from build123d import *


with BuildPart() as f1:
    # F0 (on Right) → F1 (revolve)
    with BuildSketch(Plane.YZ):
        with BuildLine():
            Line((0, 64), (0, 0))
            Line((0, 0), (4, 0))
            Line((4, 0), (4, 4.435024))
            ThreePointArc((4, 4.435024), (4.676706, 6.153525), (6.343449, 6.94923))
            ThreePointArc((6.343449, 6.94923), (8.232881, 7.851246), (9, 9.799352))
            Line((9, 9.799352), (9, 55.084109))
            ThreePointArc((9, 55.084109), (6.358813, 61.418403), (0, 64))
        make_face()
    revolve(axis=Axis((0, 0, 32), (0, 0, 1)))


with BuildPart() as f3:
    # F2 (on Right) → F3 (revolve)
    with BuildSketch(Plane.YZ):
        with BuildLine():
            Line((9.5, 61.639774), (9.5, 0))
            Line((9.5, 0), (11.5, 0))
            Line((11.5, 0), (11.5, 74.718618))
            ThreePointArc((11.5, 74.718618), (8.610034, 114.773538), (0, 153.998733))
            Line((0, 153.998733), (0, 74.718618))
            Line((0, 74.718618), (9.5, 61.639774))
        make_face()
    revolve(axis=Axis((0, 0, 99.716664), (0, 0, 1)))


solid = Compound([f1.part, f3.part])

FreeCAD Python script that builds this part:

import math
import FreeCAD as App
import Part
import Sketcher

V = App.Vector

doc = App.newDocument("Part")
body = doc.addObject("PartDesign::Body", "Body")

# Sketch on YZ plane
sketch1 = body.newObject("Sketcher::SketchObject", "Sketch")
sketch1.AttachmentSupport = (doc.getObject("YZ_Plane"), [""])
sketch1.MapMode = "FlatFace"
sketch1.addGeometry(Part.LineSegment(V(0, 64, 0), V(0, 0, 0)), False)
sketch1.addGeometry(Part.LineSegment(V(0, 0, 0), V(4, 0, 0)), False)
sketch1.addGeometry(Part.LineSegment(V(4, 0, 0), V(4, 4.4, 0)), False)
sketch1.addGeometry(Part.ArcOfCircle(Part.Circle(V(6.5, 4.4, 0), V(0, 0, 1), 2.5), math.radians(94), math.radians(180)), False)
sketch1.addGeometry(Part.ArcOfCircle(Part.Circle(V(6.1, 9.8, 0), V(0, 0, 1), 2.9), math.radians(-86), math.radians(0)), False)
sketch1.addGeometry(Part.LineSegment(V(9, 9.8, 0), V(9, 55.1, 0)), False)
sketch1.addGeometry(Part.ArcOfCircle(Part.Circle(V(0.1, 55.1, 0), V(0, 0, 1), 8.9), math.radians(0), math.radians(91)), False)
sketch1.addConstraint(Sketcher.Constraint("Coincident", 0, 2, 1, 1))
sketch1.addConstraint(Sketcher.Constraint("Coincident", 1, 2, 2, 1))
sketch1.addConstraint(Sketcher.Constraint("Tangent", 2, 2, 3, 2))
sketch1.addConstraint(Sketcher.Constraint("Tangent", 3, 1, 4, 1))
sketch1.addConstraint(Sketcher.Constraint("Tangent", 4, 2, 5, 1))
sketch1.addConstraint(Sketcher.Constraint("Tangent", 5, 2, 6, 1))
sketch1.addConstraint(Sketcher.Constraint("Coincident", 6, 2, 0, 1))
sketch1.addConstraint(Sketcher.Constraint("Vertical", 0))
sketch1.addConstraint(Sketcher.Constraint("Horizontal", 1))
sketch1.addConstraint(Sketcher.Constraint("Vertical", 2))
sketch1.addConstraint(Sketcher.Constraint("Vertical", 5))
sketch1.addConstraint(Sketcher.Constraint("Coincident", 0, 2, -1, 1))
sketch1.addConstraint(Sketcher.Constraint("DistanceX", 1, 1, 1, 2, 4.0))
sketch1.addConstraint(Sketcher.Constraint("DistanceY", 0, 2, 0, 1, 64.0))
sketch1.addConstraint(Sketcher.Constraint("DistanceX", -1, 1, 4, 2, 9.0))
sketch1.addConstraint(Sketcher.Constraint("Radius", 3, 2.520427))
sketch1.addConstraint(Sketcher.Constraint("Radius", 4, 2.857173))
sketch1.addConstraint(Sketcher.Constraint("Radius", 6, 8.916284))
sketch1.addConstraint(Sketcher.Constraint("DistanceY", 2, 1, 2, 2, 4.435024))
revolution = body.newObject("PartDesign::Revolution", "Revolution")
revolution.Profile = sketch1
revolution.ReferenceAxis = (sketch1, ["V_Axis"])
revolution.Angle = 360
body2 = doc.addObject("PartDesign::Body", "Body001")

# Sketch on YZ plane
sketch2 = body2.newObject("Sketcher::SketchObject", "Sketch001")
sketch2.AttachmentSupport = (doc.getObject("YZ_Plane001"), [""])
sketch2.MapMode = "FlatFace"
sketch2.addGeometry(Part.LineSegment(V(9.5, 61.6, 0), V(9.5, 0, 0)), False)
sketch2.addGeometry(Part.LineSegment(V(9.5, 0, 0), V(11.5, 0, 0)), False)
sketch2.addGeometry(Part.LineSegment(V(11.5, 0, 0), V(11.5, 74.7, 0)), False)
sketch2.addGeometry(Part.ArcOfCircle(Part.Circle(V(-267.5, 74.7, 0), V(0, 0, 1), 279), math.radians(0), math.radians(16.51)), False)
sketch2.addGeometry(Part.LineSegment(V(0, 154, 0), V(0, 74.7, 0)), False)
sketch2.addGeometry(Part.LineSegment(V(0, 74.7, 0), V(9.5, 61.6, 0)), False)
sketch2.addConstraint(Sketcher.Constraint("Coincident", 0, 2, 1, 1))
sketch2.addConstraint(Sketcher.Constraint("Coincident", 1, 2, 2, 1))
sketch2.addConstraint(Sketcher.Constraint("Tangent", 2, 2, 3, 1))
sketch2.addConstraint(Sketcher.Constraint("Coincident", 3, 2, 4, 1))
sketch2.addConstraint(Sketcher.Constraint("Coincident", 4, 2, 5, 1))
sketch2.addConstraint(Sketcher.Constraint("Coincident", 5, 2, 0, 1))
sketch2.addConstraint(Sketcher.Constraint("Vertical", 0))
sketch2.addConstraint(Sketcher.Constraint("Horizontal", 1))
sketch2.addConstraint(Sketcher.Constraint("Vertical", 2))
sketch2.addConstraint(Sketcher.Constraint("Vertical", 4))
sketch2.addConstraint(Sketcher.Constraint("PointOnObject", 0, 2, -1))
sketch2.addConstraint(Sketcher.Constraint("PointOnObject", 3, 2, -2))
sketch2.addConstraint(Sketcher.Constraint("Horizontal", 2, 2, 4, 2))
sketch2.addConstraint(Sketcher.Constraint("DistanceX", 1, 1, 1, 2, 2.0))
sketch2.addConstraint(Sketcher.Constraint("DistanceX", -1, 1, 0, 2, 9.5))
sketch2.addConstraint(Sketcher.Constraint("Radius", 3, 279.025494))
sketch2.addConstraint(Sketcher.Constraint("DistanceY", 2, 1, 2, 2, 74.718618))
sketch2.addConstraint(Sketcher.Constraint("DistanceY", 0, 2, 0, 1, 61.639774))
revolution2 = body2.newObject("PartDesign::Revolution", "Revolution001")
revolution2.Profile = sketch2
revolution2.ReferenceAxis = (sketch2, ["V_Axis"])
revolution2.Angle = 360

doc.recompute()
